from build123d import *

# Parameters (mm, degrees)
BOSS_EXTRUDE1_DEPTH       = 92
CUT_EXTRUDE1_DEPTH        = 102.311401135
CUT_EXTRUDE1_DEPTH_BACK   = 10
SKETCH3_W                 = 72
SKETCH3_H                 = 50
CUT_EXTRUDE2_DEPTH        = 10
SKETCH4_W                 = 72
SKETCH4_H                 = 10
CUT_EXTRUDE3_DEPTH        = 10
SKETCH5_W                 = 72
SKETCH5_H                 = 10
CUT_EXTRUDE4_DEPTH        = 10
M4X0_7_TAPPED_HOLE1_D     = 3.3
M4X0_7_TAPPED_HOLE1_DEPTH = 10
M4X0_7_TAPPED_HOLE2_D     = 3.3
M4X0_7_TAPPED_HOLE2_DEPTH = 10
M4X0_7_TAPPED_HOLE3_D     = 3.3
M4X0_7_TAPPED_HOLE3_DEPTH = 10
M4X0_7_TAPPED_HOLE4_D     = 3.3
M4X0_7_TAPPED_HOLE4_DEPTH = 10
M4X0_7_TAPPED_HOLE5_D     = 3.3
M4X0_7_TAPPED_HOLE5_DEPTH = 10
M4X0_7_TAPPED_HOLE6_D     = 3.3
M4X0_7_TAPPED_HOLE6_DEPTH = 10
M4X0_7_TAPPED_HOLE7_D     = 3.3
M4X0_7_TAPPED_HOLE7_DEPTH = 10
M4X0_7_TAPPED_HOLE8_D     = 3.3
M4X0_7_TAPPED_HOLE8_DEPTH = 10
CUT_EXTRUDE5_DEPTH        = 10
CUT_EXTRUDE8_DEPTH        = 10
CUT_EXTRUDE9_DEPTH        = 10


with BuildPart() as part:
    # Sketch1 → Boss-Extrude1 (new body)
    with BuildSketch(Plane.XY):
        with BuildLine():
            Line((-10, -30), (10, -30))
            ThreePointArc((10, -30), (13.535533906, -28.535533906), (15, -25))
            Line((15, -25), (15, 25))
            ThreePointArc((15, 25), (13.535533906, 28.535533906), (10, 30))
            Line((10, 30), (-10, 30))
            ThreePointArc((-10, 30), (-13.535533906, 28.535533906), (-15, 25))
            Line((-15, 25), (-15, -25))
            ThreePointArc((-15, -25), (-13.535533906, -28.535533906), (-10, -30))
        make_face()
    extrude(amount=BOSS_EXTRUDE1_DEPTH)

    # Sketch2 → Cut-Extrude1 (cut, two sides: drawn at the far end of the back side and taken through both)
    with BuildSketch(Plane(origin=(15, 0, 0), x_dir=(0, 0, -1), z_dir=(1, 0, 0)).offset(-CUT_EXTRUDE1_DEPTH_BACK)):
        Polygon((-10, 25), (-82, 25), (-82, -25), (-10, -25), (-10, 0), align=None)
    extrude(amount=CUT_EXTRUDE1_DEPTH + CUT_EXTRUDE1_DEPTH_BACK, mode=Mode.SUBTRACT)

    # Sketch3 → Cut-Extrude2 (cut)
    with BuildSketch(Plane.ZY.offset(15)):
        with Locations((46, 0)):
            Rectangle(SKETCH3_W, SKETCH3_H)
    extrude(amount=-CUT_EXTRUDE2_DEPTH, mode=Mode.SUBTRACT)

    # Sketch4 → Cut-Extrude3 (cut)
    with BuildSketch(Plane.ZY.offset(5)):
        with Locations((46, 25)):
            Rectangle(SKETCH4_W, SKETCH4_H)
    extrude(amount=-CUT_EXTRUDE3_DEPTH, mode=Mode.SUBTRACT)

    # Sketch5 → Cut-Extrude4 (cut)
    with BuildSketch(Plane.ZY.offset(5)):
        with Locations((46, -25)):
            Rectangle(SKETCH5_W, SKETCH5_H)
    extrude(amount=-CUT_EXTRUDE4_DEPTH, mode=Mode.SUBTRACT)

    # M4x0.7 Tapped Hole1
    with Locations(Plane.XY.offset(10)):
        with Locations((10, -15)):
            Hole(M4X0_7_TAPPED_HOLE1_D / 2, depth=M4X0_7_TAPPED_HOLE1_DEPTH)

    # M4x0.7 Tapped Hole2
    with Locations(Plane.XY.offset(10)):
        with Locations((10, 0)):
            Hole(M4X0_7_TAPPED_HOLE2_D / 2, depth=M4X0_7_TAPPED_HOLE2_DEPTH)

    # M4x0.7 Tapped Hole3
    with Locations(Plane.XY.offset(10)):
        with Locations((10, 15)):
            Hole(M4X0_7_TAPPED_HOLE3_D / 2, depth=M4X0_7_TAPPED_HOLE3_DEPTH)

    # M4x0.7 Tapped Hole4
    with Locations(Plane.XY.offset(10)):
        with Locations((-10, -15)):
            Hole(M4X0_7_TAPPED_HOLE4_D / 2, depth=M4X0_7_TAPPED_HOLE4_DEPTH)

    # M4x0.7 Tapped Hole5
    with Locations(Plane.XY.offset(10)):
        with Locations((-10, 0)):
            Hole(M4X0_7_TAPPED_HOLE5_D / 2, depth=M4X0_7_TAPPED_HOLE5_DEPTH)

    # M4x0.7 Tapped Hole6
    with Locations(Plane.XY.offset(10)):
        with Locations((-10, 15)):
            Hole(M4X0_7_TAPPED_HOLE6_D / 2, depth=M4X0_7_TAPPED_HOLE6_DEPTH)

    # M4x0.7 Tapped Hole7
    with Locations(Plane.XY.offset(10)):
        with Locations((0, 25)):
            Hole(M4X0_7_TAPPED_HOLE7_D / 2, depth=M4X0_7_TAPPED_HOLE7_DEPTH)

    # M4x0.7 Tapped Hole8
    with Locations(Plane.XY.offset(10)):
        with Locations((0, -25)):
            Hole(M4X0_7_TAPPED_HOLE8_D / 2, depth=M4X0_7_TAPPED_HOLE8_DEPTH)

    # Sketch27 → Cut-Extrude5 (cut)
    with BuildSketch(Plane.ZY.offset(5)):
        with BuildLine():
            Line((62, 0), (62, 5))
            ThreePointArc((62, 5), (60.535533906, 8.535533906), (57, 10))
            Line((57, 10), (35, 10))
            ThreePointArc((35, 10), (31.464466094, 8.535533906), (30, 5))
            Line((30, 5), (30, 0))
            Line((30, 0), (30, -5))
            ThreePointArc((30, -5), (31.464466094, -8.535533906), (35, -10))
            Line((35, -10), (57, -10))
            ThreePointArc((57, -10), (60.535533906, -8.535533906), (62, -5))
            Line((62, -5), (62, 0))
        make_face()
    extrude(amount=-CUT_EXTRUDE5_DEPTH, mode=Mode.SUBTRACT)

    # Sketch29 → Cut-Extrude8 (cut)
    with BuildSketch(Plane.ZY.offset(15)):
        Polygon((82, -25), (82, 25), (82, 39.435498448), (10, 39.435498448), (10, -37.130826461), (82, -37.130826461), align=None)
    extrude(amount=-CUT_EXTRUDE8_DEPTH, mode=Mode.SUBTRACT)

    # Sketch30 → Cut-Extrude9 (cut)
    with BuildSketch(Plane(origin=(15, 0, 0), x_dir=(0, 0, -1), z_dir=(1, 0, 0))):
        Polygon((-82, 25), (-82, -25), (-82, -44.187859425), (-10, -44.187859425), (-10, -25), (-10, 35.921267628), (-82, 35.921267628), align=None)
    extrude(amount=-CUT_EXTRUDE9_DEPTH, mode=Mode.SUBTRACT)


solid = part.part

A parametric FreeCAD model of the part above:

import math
import FreeCAD as App
import Part
import Sketcher

V = App.Vector
Q = App.Units.Quantity


def add_polygon(sketch, points):
    """Adds a closed chain of lines whose ends are joined by coincident constraints."""
    first, n = sketch.GeometryCount, len(points)
    for a, b in zip(points, points[1:] + points[:1]):
        sketch.addGeometry(Part.LineSegment(App.Vector(*a, 0), App.Vector(*b, 0)), False)
    for i in range(n):
        sketch.addConstraint(Sketcher.Constraint("Coincident", first + i, 2, first + (i + 1) % n, 1))

doc = App.newDocument("Part")
body = doc.addObject("PartDesign::Body", "Body")

# Sketch on XY plane
sketch1 = doc.addObject("Sketcher::SketchObject", "Sketch")
body.addObject(sketch1)
sketch1.AttachmentSupport = (doc.XY_Plane, [""])
sketch1.MapMode = "FlatFace"
sketch1.addGeometry([
    Part.LineSegment(V(-10, -30, 0), V(10, -30, 0)),  # 0
    Part.ArcOfCircle(Part.Circle(V(10, -25, 0), V(0, 0, 1), 5), math.radians(-90), math.radians(0)),  # 1
    Part.LineSegment(V(15, -25, 0), V(15, 25, 0)),  # 2
    Part.ArcOfCircle(Part.Circle(V(10, 25, 0), V(0, 0, 1), 5), math.radians(0), math.radians(90)),  # 3
    Part.LineSegment(V(10, 30, 0), V(-10, 30, 0)),  # 4
    Part.ArcOfCircle(Part.Circle(V(-10, 25, 0), V(0, 0, 1), 5), math.radians(90), math.radians(180)),  # 5
    Part.LineSegment(V(-15, 25, 0), V(-15, -25, 0)),  # 6
    Part.ArcOfCircle(Part.Circle(V(-10, -25, 0), V(0, 0, 1), 5), math.radians(180), math.radians(270)),  # 7
], False)
sketch1.addConstraint([
    Sketcher.Constraint("Tangent", 0, 2, 1, 1),
    Sketcher.Constraint("Tangent", 1, 2, 2, 1),
    Sketcher.Constraint("Tangent", 2, 2, 3, 1),
    Sketcher.Constraint("Tangent", 3, 2, 4, 1),
    Sketcher.Constraint("Tangent", 4, 2, 5, 1),
    Sketcher.Constraint("Tangent", 5, 2, 6, 1),
    Sketcher.Constraint("Tangent", 6, 2, 7, 1),
    Sketcher.Constraint("Tangent", 7, 2, 0, 1),
    Sketcher.Constraint("Horizontal", 0),
    Sketcher.Constraint("Vertical", 2),
    Sketcher.Constraint("Horizontal", 4),
    Sketcher.Constraint("Vertical", 6),
    Sketcher.Constraint("Equal", 1, 3),
    Sketcher.Constraint("Equal", 3, 5),
    Sketcher.Constraint("Equal", 5, 7),
    Sketcher.Constraint("Symmetric", 1, 3, 5, 3, -1, 1),
    Sketcher.Constraint("Radius", 1, Q("5 mm")),
    Sketcher.Constraint("DistanceX", 0, 1, 0, 2, Q("20 mm")),
    Sketcher.Constraint("DistanceY", 2, 1, 2, 2, Q("50 mm")),
])
pad1 = doc.addObject("PartDesign::Pad", "Pad")
body.addObject(pad1)
pad1.Profile = sketch1
pad1.Length = 92

# Sketch on YZ plane
sketch2 = doc.addObject("Sketcher::SketchObject", "Sketch001")
body.addObject(sketch2)
sketch2.AttachmentSupport = (doc.YZ_Plane, [""])
sketch2.MapMode = "FlatFace"
sketch2.AttachmentOffset = App.Placement(V(0, 0, 15), App.Rotation())
add_polygon(sketch2, [(25, 10), (25, 82), (-25, 82), (-25, 10)])  # lines 0-3
sketch2.addConstraint([
    Sketcher.Constraint("Vertical", 0),
    Sketcher.Constraint("Horizontal", 1),
    Sketcher.Constraint("Vertical", 2),
    Sketcher.Constraint("Horizontal", 3),
    Sketcher.Constraint("DistanceX", 1, 2, 1, 1, Q("50 mm")),
    Sketcher.Constraint("DistanceY", 0, 1, 0, 2, Q("72 mm")),
    Sketcher.Constraint("DistanceX", -1, 1, 0, 2, Q("25 mm")),
    Sketcher.Constraint("DistanceY", -1, 1, 0, 2, Q("82 mm")),
])
pocket1 = doc.addObject("PartDesign::Pocket", "Pocket")
body.addObject(pocket1)
pocket1.Profile = sketch2
pocket1.Type = "TwoLengths"
pocket1.Length = 102.311401
pocket1.Length2 = 10
pocket1.Reversed = True

# Sketch on YZ plane
sketch3 = doc.addObject("Sketcher::SketchObject", "Sketch002")
body.addObject(sketch3)
sketch3.AttachmentSupport = (doc.YZ_Plane, [""])
sketch3.MapMode = "FlatFace"
sketch3.AttachmentOffset = App.Placement(V(0, 0, -15), App.Rotation())
add_polygon(sketch3, [(25, 10), (-25, 10), (-25, 82), (25, 82)])  # lines 0-3
sketch3.addConstraint([
    Sketcher.Constraint("Horizontal", 0),
    Sketcher.Constraint("Vertical", 1),
    Sketcher.Constraint("Horizontal", 2),
    Sketcher.Constraint("Vertical", 3),
    Sketcher.Constraint("DistanceX", 0, 2, 0, 1, Q("50 mm")),
    Sketcher.Constraint("DistanceY", 1, 1, 1, 2, Q("72 mm")),
    Sketcher.Constraint("DistanceX", 0, 2, -1, 1, Q("25 mm")),
    Sketcher.Constraint("DistanceY", -1, 1, 0, 2, Q("10 mm")),
])
pocket2 = doc.addObject("PartDesign::Pocket", "Pocket001")
body.addObject(pocket2)
pocket2.Profile = sketch3
pocket2.Length = 10
pocket2.Reversed = True

# Sketch on YZ plane
sketch4 = doc.addObject("Sketcher::SketchObject", "Sketch003")
body.addObject(sketch4)
sketch4.AttachmentSupport = (doc.YZ_Plane, [""])
sketch4.MapMode = "FlatFace"
sketch4.AttachmentOffset = App.Placement(V(0, 0, -5), App.Rotation())
add_polygon(sketch4, [(30, 10), (20, 10), (20, 82), (30, 82)])  # lines 0-3
sketch4.addConstraint([
    Sketcher.Constraint("Horizontal", 0),
    Sketcher.Constraint("Vertical", 1),
    Sketcher.Constraint("Horizontal", 2),
    Sketcher.Constraint("Vertical", 3),
    Sketcher.Constraint("DistanceX", 0, 2, 0, 1, Q("10 mm")),
    Sketcher.Constraint("DistanceY", 1, 1, 1, 2, Q("72 mm")),
    Sketcher.Constraint("DistanceX", -1, 1, 0, 2, Q("20 mm")),
    Sketcher.Constraint("DistanceY", -1, 1, 0, 2, Q("10 mm")),
])
pocket3 = doc.addObject("PartDesign::Pocket", "Pocket002")
body.addObject(pocket3)
pocket3.Profile = sketch4
pocket3.Length = 10
pocket3.Reversed = True

# Sketch on YZ plane
sketch5 = doc.addObject("Sketcher::SketchObject", "Sketch004")
body.addObject(sketch5)
sketch5.AttachmentSupport = (doc.YZ_Plane, [""])
sketch5.MapMode = "FlatFace"
sketch5.AttachmentOffset = App.Placement(V(0, 0, -5), App.Rotation())
add_polygon(sketch5, [(-20, 10), (-30, 10), (-30, 82), (-20, 82)])  # lines 0-3
sketch5.addConstraint([
    Sketcher.Constraint("Horizontal", 0),
    Sketcher.Constraint("Vertical", 1),
    Sketcher.Constraint("Horizontal", 2),
    Sketcher.Constraint("Vertical", 3),
    Sketcher.Constraint("DistanceX", 0, 2, 0, 1, Q("10 mm")),
    Sketcher.Constraint("DistanceY", 1, 1, 1, 2, Q("72 mm")),
    Sketcher.Constraint("DistanceX", 0, 2, -1, 1, Q("30 mm")),
    Sketcher.Constraint("DistanceY", -1, 1, 0, 2, Q("10 mm")),
])
pocket4 = doc.addObject("PartDesign::Pocket", "Pocket003")
body.addObject(pocket4)
pocket4.Profile = sketch5
pocket4.Length = 10
pocket4.Reversed = True

# Sketch on XY plane
sketch6 = doc.addObject("Sketcher::SketchObject", "Sketch005")
body.addObject(sketch6)
sketch6.AttachmentSupport = (doc.XY_Plane, [""])
sketch6.MapMode = "FlatFace"
sketch6.AttachmentOffset = App.Placement(V(0, 0, 10), App.Rotation())
sketch6.addGeometry(Part.Circle(V(10, -15, 0), V(0, 0, 1), 1.65), False)
sketch6.addConstraint([
    Sketcher.Constraint("Diameter", 0, Q("3.3 mm")),
    Sketcher.Constraint("DistanceX", -1, 1, 0, 3, Q("10 mm")),
    Sketcher.Constraint("DistanceY", 0, 3, -1, 1, Q("15 mm")),
])
doc.recompute()
hole = doc.addObject("PartDesign::Hole", "Hole")
body.addObject(hole)
hole.Profile = sketch6
hole.ThreadType = "None"
hole.Diameter = 3.3
hole.DepthType = "Dimension"
hole.Depth = 10
hole.DrillPoint = "Flat"

# Sketch on XY plane
sketch7 = doc.addObject("Sketcher::SketchObject", "Sketch006")
body.addObject(sketch7)
sketch7.AttachmentSupport = (doc.XY_Plane, [""])
sketch7.MapMode = "FlatFace"
sketch7.AttachmentOffset = App.Placement(V(0, 0, 10), App.Rotation())
sketch7.addGeometry(Part.Circle(V(10, 0, 0), V(0, 0, 1), 1.65), False)
sketch7.addConstraint([
    Sketcher.Constraint("PointOnObject", 0, 3, -1),
    Sketcher.Constraint("Diameter", 0, Q("3.3 mm")),
    Sketcher.Constraint("DistanceX", -1, 1, 0, 3, Q("10 mm")),
])
doc.recompute()
hole2 = doc.addObject("PartDesign::Hole", "Hole001")
body.addObject(hole2)
hole2.Profile = sketch7
hole2.ThreadType = "None"
hole2.Diameter = 3.3
hole2.DepthType = "Dimension"
hole2.Depth = 10
hole2.DrillPoint = "Flat"

# Sketch on XY plane
sketch8 = doc.addObject("Sketcher::SketchObject", "Sketch007")
body.addObject(sketch8)
sketch8.AttachmentSupport = (doc.XY_Plane, [""])
sketch8.MapMode = "FlatFace"
sketch8.AttachmentOffset = App.Placement(V(0, 0, 10), App.Rotation())
sketch8.addGeometry(Part.Circle(V(10, 15, 0), V(0, 0, 1), 1.65), False)
sketch8.addConstraint([
    Sketcher.Constraint("Diameter", 0, Q("3.3 mm")),
    Sketcher.Constraint("DistanceX", -1, 1, 0, 3, Q("10 mm")),
    Sketcher.Constraint("DistanceY", -1, 1, 0, 3, Q("15 mm")),
])
doc.recompute()
hole3 = doc.addObject("PartDesign::Hole", "Hole002")
body.addObject(hole3)
hole3.Profile = sketch8
hole3.ThreadType = "None"
hole3.Diameter = 3.3
hole3.DepthType = "Dimension"
hole3.Depth = 10
hole3.DrillPoint = "Flat"

# Sketch on XY plane
sketch9 = doc.addObject("Sketcher::SketchObject", "Sketch008")
body.addObject(sketch9)
sketch9.AttachmentSupport = (doc.XY_Plane, [""])
sketch9.MapMode = "FlatFace"
sketch9.AttachmentOffset = App.Placement(V(0, 0, 10), App.Rotation())
sketch9.addGeometry(Part.Circle(V(-10, -15, 0), V(0, 0, 1), 1.65), False)
sketch9.addConstraint([
    Sketcher.Constraint("Diameter", 0, Q("3.3 mm")),
    Sketcher.Constraint("DistanceX", 0, 3, -1, 1, Q("10 mm")),
    Sketcher.Constraint("DistanceY", 0, 3, -1, 1, Q("15 mm")),
])
doc.recompute()
hole4 = doc.addObject("PartDesign::Hole", "Hole003")
body.addObject(hole4)
hole4.Profile = sketch9
hole4.ThreadType = "None"
hole4.Diameter = 3.3
hole4.DepthType = "Dimension"
hole4.Depth = 10
hole4.DrillPoint = "Flat"

# Sketch on XY plane
sketch10 = doc.addObject("Sketcher::SketchObject", "Sketch009")
body.addObject(sketch10)
sketch10.AttachmentSupport = (doc.XY_Plane, [""])
sketch10.MapMode = "FlatFace"
sketch10.AttachmentOffset = App.Placement(V(0, 0, 10), App.Rotation())
sketch10.addGeometry(Part.Circle(V(-10, 0, 0), V(0, 0, 1), 1.65), False)
sketch10.addConstraint([
    Sketcher.Constraint("PointOnObject", 0, 3, -1),
    Sketcher.Constraint("Diameter", 0, Q("3.3 mm")),
    Sketcher.Constraint("DistanceX", 0, 3, -1, 1, Q("10 mm")),
])
doc.recompute()
hole5 = doc.addObject("PartDesign::Hole", "Hole004")
body.addObject(hole5)
hole5.Profile = sketch10
hole5.ThreadType = "None"
hole5.Diameter = 3.3
hole5.DepthType = "Dimension"
hole5.Depth = 10
hole5.DrillPoint = "Flat"

# Sketch on XY plane
sketch11 = doc.addObject("Sketcher::SketchObject", "Sketch010")
body.addObject(sketch11)
sketch11.AttachmentSupport = (doc.XY_Plane, [""])
sketch11.MapMode = "FlatFace"
sketch11.AttachmentOffset = App.Placement(V(0, 0, 10), App.Rotation())
sketch11.addGeometry(Part.Circle(V(-10, 15, 0), V(0, 0, 1), 1.65), False)
sketch11.addConstraint([
    Sketcher.Constraint("Diameter", 0, Q("3.3 mm")),
    Sketcher.Constraint("DistanceX", 0, 3, -1, 1, Q("10 mm")),
    Sketcher.Constraint("DistanceY", -1, 1, 0, 3, Q("15 mm")),
])
doc.recompute()
hole6 = doc.addObject("PartDesign::Hole", "Hole005")
body.addObject(hole6)
hole6.Profile = sketch11
hole6.ThreadType = "None"
hole6.Diameter = 3.3
hole6.DepthType = "Dimension"
hole6.Depth = 10
hole6.DrillPoint = "Flat"

# Sketch on XY plane
sketch12 = doc.addObject("Sketcher::SketchObject", "Sketch011")
body.addObject(sketch12)
sketch12.AttachmentSupport = (doc.XY_Plane, [""])
sketch12.MapMode = "FlatFace"
sketch12.AttachmentOffset = App.Placement(V(0, 0, 10), App.Rotation())
sketch12.addGeometry(Part.Circle(V(0, 25, 0), V(0, 0, 1), 1.65), False)
sketch12.addConstraint([
    Sketcher.Constraint("PointOnObject", 0, 3, -2),
    Sketcher.Constraint("Diameter", 0, Q("3.3 mm")),
    Sketcher.Constraint("DistanceY", -1, 1, 0, 3, Q("25 mm")),
])
doc.recompute()
hole7 = doc.addObject("PartDesign::Hole", "Hole006")
body.addObject(hole7)
hole7.Profile = sketch12
hole7.ThreadType = "None"
hole7.Diameter = 3.3
hole7.DepthType = "Dimension"
hole7.Depth = 10
hole7.DrillPoint = "Flat"

# Sketch on XY plane
sketch13 = doc.addObject("Sketcher::SketchObject", "Sketch012")
body.addObject(sketch13)
sketch13.AttachmentSupport = (doc.XY_Plane, [""])
sketch13.MapMode = "FlatFace"
sketch13.AttachmentOffset = App.Placement(V(0, 0, 10), App.Rotation())
sketch13.addGeometry(Part.Circle(V(0, -25, 0), V(0, 0, 1), 1.65), False)
sketch13.addConstraint([
    Sketcher.Constraint("PointOnObject", 0, 3, -2),
    Sketcher.Constraint("Diameter", 0, Q("3.3 mm")),
    Sketcher.Constraint("DistanceY", 0, 3, -1, 1, Q("25 mm")),
])
doc.recompute()
hole8 = doc.addObject("PartDesign::Hole", "Hole007")
body.addObject(hole8)
hole8.Profile = sketch13
hole8.ThreadType = "None"
hole8.Diameter = 3.3
hole8.DepthType = "Dimension"
hole8.Depth = 10
hole8.DrillPoint = "Flat"

# Sketch on YZ plane
sketch14 = doc.addObject("Sketcher::SketchObject", "Sketch013")
body.addObject(sketch14)
sketch14.AttachmentSupport = (doc.YZ_Plane, [""])
sketch14.MapMode = "FlatFace"
sketch14.AttachmentOffset = App.Placement(V(0, 0, -5), App.Rotation())
sketch14.addGeometry([
    Part.ArcOfCircle(Part.Circle(V(5, 57, 0), V(0, 0, 1), 5), math.radians(0), math.radians(90)),  # 0
    Part.LineSegment(V(10, 57, 0), V(10, 35, 0)),  # 1
    Part.ArcOfCircle(Part.Circle(V(5, 35, 0), V(0, 0, 1), 5), math.radians(-90), math.radians(0)),  # 2
    Part.LineSegment(V(5, 30, 0), V(-5, 30, 0)),  # 3
    Part.ArcOfCircle(Part.Circle(V(-5, 35, 0), V(0, 0, 1), 5), math.radians(180), math.radians(270)),  # 4
    Part.LineSegment(V(-10, 35, 0), V(-10, 57, 0)),  # 5
    Part.ArcOfCircle(Part.Circle(V(-5, 57, 0), V(0, 0, 1), 5), math.radians(90), math.radians(180)),  # 6
    Part.LineSegment(V(-5, 62, 0), V(5, 62, 0)),  # 7
], False)
sketch14.addConstraint([
    Sketcher.Constraint("Tangent", 0, 1, 1, 1),
    Sketcher.Constraint("Tangent", 1, 2, 2, 2),
    Sketcher.Constraint("Tangent", 2, 1, 3, 1),
    Sketcher.Constraint("Tangent", 3, 2, 4, 2),
    Sketcher.Constraint("Tangent", 4, 1, 5, 1),
    Sketcher.Constraint("Tangent", 5, 2, 6, 2),
    Sketcher.Constraint("Tangent", 6, 1, 7, 1),
    Sketcher.Constraint("Tangent", 7, 2, 0, 2),
    Sketcher.Constraint("Vertical", 1),
    Sketcher.Constraint("Horizontal", 3),
    Sketcher.Constraint("Vertical", 5),
    Sketcher.Constraint("Horizontal", 7),
    Sketcher.Constraint("Equal", 0, 2),
    Sketcher.Constraint("Equal", 2, 4),
    Sketcher.Constraint("Equal", 4, 6),
    Sketcher.Constraint("Radius", 0, Q("5 mm")),
    Sketcher.Constraint("DistanceX", 3, 2, 3, 1, Q("10 mm")),
    Sketcher.Constraint("DistanceY", 1, 2, 1, 1, Q("22 mm")),
    Sketcher.Constraint("DistanceX", -1, 1, 0, 3, Q("5 mm")),
    Sketcher.Constraint("DistanceY", -1, 1, 0, 3, Q("57 mm")),
])
pocket5 = doc.addObject("PartDesign::Pocket", "Pocket004")
body.addObject(pocket5)
pocket5.Profile = sketch14
pocket5.Length = 10
pocket5.Reversed = True

# Sketch on YZ plane
sketch15 = doc.addObject("Sketcher::SketchObject", "Sketch014")
body.addObject(sketch15)
sketch15.AttachmentSupport = (doc.YZ_Plane, [""])
sketch15.MapMode = "FlatFace"
sketch15.AttachmentOffset = App.Placement(V(0, 0, -15), App.Rotation())
add_polygon(sketch15, [(39.435498, 82), (39.435498, 10), (-37.130826, 10), (-37.130826, 82)])  # lines 0-3
sketch15.addConstraint([
    Sketcher.Constraint("Vertical", 0),
    Sketcher.Constraint("Horizontal", 1),
    Sketcher.Constraint("Vertical", 2),
    Sketcher.Constraint("Horizontal", 3),
    Sketcher.Constraint("DistanceY", 0, 2, 0, 1, Q("72 mm")),
    Sketcher.Constraint("DistanceY", -1, 1, 0, 2, Q("10 mm")),
    Sketcher.Constraint("DistanceX", -1, 1, 0, 2, Q("39.435498 mm")),
    Sketcher.Constraint("DistanceX", 1, 2, 1, 1, Q("76.566325 mm")),
])
pocket6 = doc.addObject("PartDesign::Pocket", "Pocket005")
body.addObject(pocket6)
pocket6.Profile = sketch15
pocket6.Length = 10
pocket6.Reversed = True

# Sketch on YZ plane
sketch16 = doc.addObject("Sketcher::SketchObject", "Sketch015")
body.addObject(sketch16)
sketch16.AttachmentSupport = (doc.YZ_Plane, [""])
sketch16.MapMode = "FlatFace"
sketch16.AttachmentOffset = App.Placement(V(0, 0, 15), App.Rotation())
add_polygon(sketch16, [(-44.187859, 82), (-44.187859, 10), (35.921268, 10), (35.921268, 82)])  # lines 0-3
sketch16.addConstraint([
    Sketcher.Constraint("Vertical", 0),
    Sketcher.Constraint("Horizontal", 1),
    Sketcher.Constraint("Vertical", 2),
    Sketcher.Constraint("Horizontal", 3),
    Sketcher.Constraint("DistanceY", 0, 2, 0, 1, Q("72 mm")),
    Sketcher.Constraint("DistanceY", -1, 1, 0, 2, Q("10 mm")),
    Sketcher.Constraint("DistanceX", 1, 1, 1, 2, Q("80.109127 mm")),
    Sketcher.Constraint("DistanceX", 0, 2, -1, 1, Q("44.187859 mm")),
])
pocket7 = doc.addObject("PartDesign::Pocket", "Pocket006")
body.addObject(pocket7)
pocket7.Profile = sketch16
pocket7.Length = 10

doc.recompute()
